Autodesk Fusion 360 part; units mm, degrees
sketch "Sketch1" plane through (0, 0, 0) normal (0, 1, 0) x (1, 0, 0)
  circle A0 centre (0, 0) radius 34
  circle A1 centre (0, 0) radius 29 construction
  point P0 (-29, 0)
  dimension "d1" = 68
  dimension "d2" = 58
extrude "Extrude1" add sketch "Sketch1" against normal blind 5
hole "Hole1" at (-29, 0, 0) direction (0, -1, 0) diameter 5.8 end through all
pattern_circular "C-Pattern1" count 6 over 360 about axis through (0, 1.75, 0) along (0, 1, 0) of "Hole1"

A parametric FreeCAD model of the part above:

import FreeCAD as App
import Part
import Sketcher

doc = App.newDocument("Part")
body = doc.addObject("PartDesign::Body", "Body")

sketch1 = doc.addObject("Sketcher::SketchObject", "Sketch")
body.addObject(sketch1)
sketch1.AttachmentSupport = (doc.XZ_Plane, [""])
sketch1.MapMode = "FlatFace"
sketch1.addGeometry(Part.Circle(App.Vector(0, 0, 0), App.Vector(0, 0, 1), 34), False)
sketch1.addConstraint(Sketcher.Constraint("Coincident", 0, 3, -1, 1))
sketch1.addConstraint(Sketcher.Constraint("Diameter", 0, 68.0))
pad1 = doc.addObject("PartDesign::Pad", "Pad")
body.addObject(pad1)
pad1.Profile = sketch1
pad1.Length = 5

sketch2 = doc.addObject("Sketcher::SketchObject", "Sketch001")
body.addObject(sketch2)
sketch2.AttachmentSupport = (doc.XZ_Plane, [""])
sketch2.MapMode = "FlatFace"
sketch2.addGeometry(Part.Circle(App.Vector(-29, 0, 0), App.Vector(0, 0, 1), 2.9), False)
sketch2.addConstraint(Sketcher.Constraint("PointOnObject", 0, 3, -1))
sketch2.addConstraint(Sketcher.Constraint("Diameter", 0, 5.8))
sketch2.addConstraint(Sketcher.Constraint("DistanceX", 0, 3, -1, 1, 29.0))
doc.recompute()
hole = doc.addObject("PartDesign::Hole", "Hole")
body.addObject(hole)
hole.Profile = sketch2
hole.ThreadType = "None"
hole.Diameter = 5.8
hole.DepthType = "ThroughAll"
hole.Reversed = True
doc.recompute()

polarpattern = doc.addObject("PartDesign::PolarPattern", "PolarPattern")
body.addObject(polarpattern)
polarpattern.Originals = [hole]
polarpattern.Axis = (doc.Y_Axis, [""])
polarpattern.Angle = 360
polarpattern.Occurrences = 6
body.Tip = polarpattern

doc.recompute()
